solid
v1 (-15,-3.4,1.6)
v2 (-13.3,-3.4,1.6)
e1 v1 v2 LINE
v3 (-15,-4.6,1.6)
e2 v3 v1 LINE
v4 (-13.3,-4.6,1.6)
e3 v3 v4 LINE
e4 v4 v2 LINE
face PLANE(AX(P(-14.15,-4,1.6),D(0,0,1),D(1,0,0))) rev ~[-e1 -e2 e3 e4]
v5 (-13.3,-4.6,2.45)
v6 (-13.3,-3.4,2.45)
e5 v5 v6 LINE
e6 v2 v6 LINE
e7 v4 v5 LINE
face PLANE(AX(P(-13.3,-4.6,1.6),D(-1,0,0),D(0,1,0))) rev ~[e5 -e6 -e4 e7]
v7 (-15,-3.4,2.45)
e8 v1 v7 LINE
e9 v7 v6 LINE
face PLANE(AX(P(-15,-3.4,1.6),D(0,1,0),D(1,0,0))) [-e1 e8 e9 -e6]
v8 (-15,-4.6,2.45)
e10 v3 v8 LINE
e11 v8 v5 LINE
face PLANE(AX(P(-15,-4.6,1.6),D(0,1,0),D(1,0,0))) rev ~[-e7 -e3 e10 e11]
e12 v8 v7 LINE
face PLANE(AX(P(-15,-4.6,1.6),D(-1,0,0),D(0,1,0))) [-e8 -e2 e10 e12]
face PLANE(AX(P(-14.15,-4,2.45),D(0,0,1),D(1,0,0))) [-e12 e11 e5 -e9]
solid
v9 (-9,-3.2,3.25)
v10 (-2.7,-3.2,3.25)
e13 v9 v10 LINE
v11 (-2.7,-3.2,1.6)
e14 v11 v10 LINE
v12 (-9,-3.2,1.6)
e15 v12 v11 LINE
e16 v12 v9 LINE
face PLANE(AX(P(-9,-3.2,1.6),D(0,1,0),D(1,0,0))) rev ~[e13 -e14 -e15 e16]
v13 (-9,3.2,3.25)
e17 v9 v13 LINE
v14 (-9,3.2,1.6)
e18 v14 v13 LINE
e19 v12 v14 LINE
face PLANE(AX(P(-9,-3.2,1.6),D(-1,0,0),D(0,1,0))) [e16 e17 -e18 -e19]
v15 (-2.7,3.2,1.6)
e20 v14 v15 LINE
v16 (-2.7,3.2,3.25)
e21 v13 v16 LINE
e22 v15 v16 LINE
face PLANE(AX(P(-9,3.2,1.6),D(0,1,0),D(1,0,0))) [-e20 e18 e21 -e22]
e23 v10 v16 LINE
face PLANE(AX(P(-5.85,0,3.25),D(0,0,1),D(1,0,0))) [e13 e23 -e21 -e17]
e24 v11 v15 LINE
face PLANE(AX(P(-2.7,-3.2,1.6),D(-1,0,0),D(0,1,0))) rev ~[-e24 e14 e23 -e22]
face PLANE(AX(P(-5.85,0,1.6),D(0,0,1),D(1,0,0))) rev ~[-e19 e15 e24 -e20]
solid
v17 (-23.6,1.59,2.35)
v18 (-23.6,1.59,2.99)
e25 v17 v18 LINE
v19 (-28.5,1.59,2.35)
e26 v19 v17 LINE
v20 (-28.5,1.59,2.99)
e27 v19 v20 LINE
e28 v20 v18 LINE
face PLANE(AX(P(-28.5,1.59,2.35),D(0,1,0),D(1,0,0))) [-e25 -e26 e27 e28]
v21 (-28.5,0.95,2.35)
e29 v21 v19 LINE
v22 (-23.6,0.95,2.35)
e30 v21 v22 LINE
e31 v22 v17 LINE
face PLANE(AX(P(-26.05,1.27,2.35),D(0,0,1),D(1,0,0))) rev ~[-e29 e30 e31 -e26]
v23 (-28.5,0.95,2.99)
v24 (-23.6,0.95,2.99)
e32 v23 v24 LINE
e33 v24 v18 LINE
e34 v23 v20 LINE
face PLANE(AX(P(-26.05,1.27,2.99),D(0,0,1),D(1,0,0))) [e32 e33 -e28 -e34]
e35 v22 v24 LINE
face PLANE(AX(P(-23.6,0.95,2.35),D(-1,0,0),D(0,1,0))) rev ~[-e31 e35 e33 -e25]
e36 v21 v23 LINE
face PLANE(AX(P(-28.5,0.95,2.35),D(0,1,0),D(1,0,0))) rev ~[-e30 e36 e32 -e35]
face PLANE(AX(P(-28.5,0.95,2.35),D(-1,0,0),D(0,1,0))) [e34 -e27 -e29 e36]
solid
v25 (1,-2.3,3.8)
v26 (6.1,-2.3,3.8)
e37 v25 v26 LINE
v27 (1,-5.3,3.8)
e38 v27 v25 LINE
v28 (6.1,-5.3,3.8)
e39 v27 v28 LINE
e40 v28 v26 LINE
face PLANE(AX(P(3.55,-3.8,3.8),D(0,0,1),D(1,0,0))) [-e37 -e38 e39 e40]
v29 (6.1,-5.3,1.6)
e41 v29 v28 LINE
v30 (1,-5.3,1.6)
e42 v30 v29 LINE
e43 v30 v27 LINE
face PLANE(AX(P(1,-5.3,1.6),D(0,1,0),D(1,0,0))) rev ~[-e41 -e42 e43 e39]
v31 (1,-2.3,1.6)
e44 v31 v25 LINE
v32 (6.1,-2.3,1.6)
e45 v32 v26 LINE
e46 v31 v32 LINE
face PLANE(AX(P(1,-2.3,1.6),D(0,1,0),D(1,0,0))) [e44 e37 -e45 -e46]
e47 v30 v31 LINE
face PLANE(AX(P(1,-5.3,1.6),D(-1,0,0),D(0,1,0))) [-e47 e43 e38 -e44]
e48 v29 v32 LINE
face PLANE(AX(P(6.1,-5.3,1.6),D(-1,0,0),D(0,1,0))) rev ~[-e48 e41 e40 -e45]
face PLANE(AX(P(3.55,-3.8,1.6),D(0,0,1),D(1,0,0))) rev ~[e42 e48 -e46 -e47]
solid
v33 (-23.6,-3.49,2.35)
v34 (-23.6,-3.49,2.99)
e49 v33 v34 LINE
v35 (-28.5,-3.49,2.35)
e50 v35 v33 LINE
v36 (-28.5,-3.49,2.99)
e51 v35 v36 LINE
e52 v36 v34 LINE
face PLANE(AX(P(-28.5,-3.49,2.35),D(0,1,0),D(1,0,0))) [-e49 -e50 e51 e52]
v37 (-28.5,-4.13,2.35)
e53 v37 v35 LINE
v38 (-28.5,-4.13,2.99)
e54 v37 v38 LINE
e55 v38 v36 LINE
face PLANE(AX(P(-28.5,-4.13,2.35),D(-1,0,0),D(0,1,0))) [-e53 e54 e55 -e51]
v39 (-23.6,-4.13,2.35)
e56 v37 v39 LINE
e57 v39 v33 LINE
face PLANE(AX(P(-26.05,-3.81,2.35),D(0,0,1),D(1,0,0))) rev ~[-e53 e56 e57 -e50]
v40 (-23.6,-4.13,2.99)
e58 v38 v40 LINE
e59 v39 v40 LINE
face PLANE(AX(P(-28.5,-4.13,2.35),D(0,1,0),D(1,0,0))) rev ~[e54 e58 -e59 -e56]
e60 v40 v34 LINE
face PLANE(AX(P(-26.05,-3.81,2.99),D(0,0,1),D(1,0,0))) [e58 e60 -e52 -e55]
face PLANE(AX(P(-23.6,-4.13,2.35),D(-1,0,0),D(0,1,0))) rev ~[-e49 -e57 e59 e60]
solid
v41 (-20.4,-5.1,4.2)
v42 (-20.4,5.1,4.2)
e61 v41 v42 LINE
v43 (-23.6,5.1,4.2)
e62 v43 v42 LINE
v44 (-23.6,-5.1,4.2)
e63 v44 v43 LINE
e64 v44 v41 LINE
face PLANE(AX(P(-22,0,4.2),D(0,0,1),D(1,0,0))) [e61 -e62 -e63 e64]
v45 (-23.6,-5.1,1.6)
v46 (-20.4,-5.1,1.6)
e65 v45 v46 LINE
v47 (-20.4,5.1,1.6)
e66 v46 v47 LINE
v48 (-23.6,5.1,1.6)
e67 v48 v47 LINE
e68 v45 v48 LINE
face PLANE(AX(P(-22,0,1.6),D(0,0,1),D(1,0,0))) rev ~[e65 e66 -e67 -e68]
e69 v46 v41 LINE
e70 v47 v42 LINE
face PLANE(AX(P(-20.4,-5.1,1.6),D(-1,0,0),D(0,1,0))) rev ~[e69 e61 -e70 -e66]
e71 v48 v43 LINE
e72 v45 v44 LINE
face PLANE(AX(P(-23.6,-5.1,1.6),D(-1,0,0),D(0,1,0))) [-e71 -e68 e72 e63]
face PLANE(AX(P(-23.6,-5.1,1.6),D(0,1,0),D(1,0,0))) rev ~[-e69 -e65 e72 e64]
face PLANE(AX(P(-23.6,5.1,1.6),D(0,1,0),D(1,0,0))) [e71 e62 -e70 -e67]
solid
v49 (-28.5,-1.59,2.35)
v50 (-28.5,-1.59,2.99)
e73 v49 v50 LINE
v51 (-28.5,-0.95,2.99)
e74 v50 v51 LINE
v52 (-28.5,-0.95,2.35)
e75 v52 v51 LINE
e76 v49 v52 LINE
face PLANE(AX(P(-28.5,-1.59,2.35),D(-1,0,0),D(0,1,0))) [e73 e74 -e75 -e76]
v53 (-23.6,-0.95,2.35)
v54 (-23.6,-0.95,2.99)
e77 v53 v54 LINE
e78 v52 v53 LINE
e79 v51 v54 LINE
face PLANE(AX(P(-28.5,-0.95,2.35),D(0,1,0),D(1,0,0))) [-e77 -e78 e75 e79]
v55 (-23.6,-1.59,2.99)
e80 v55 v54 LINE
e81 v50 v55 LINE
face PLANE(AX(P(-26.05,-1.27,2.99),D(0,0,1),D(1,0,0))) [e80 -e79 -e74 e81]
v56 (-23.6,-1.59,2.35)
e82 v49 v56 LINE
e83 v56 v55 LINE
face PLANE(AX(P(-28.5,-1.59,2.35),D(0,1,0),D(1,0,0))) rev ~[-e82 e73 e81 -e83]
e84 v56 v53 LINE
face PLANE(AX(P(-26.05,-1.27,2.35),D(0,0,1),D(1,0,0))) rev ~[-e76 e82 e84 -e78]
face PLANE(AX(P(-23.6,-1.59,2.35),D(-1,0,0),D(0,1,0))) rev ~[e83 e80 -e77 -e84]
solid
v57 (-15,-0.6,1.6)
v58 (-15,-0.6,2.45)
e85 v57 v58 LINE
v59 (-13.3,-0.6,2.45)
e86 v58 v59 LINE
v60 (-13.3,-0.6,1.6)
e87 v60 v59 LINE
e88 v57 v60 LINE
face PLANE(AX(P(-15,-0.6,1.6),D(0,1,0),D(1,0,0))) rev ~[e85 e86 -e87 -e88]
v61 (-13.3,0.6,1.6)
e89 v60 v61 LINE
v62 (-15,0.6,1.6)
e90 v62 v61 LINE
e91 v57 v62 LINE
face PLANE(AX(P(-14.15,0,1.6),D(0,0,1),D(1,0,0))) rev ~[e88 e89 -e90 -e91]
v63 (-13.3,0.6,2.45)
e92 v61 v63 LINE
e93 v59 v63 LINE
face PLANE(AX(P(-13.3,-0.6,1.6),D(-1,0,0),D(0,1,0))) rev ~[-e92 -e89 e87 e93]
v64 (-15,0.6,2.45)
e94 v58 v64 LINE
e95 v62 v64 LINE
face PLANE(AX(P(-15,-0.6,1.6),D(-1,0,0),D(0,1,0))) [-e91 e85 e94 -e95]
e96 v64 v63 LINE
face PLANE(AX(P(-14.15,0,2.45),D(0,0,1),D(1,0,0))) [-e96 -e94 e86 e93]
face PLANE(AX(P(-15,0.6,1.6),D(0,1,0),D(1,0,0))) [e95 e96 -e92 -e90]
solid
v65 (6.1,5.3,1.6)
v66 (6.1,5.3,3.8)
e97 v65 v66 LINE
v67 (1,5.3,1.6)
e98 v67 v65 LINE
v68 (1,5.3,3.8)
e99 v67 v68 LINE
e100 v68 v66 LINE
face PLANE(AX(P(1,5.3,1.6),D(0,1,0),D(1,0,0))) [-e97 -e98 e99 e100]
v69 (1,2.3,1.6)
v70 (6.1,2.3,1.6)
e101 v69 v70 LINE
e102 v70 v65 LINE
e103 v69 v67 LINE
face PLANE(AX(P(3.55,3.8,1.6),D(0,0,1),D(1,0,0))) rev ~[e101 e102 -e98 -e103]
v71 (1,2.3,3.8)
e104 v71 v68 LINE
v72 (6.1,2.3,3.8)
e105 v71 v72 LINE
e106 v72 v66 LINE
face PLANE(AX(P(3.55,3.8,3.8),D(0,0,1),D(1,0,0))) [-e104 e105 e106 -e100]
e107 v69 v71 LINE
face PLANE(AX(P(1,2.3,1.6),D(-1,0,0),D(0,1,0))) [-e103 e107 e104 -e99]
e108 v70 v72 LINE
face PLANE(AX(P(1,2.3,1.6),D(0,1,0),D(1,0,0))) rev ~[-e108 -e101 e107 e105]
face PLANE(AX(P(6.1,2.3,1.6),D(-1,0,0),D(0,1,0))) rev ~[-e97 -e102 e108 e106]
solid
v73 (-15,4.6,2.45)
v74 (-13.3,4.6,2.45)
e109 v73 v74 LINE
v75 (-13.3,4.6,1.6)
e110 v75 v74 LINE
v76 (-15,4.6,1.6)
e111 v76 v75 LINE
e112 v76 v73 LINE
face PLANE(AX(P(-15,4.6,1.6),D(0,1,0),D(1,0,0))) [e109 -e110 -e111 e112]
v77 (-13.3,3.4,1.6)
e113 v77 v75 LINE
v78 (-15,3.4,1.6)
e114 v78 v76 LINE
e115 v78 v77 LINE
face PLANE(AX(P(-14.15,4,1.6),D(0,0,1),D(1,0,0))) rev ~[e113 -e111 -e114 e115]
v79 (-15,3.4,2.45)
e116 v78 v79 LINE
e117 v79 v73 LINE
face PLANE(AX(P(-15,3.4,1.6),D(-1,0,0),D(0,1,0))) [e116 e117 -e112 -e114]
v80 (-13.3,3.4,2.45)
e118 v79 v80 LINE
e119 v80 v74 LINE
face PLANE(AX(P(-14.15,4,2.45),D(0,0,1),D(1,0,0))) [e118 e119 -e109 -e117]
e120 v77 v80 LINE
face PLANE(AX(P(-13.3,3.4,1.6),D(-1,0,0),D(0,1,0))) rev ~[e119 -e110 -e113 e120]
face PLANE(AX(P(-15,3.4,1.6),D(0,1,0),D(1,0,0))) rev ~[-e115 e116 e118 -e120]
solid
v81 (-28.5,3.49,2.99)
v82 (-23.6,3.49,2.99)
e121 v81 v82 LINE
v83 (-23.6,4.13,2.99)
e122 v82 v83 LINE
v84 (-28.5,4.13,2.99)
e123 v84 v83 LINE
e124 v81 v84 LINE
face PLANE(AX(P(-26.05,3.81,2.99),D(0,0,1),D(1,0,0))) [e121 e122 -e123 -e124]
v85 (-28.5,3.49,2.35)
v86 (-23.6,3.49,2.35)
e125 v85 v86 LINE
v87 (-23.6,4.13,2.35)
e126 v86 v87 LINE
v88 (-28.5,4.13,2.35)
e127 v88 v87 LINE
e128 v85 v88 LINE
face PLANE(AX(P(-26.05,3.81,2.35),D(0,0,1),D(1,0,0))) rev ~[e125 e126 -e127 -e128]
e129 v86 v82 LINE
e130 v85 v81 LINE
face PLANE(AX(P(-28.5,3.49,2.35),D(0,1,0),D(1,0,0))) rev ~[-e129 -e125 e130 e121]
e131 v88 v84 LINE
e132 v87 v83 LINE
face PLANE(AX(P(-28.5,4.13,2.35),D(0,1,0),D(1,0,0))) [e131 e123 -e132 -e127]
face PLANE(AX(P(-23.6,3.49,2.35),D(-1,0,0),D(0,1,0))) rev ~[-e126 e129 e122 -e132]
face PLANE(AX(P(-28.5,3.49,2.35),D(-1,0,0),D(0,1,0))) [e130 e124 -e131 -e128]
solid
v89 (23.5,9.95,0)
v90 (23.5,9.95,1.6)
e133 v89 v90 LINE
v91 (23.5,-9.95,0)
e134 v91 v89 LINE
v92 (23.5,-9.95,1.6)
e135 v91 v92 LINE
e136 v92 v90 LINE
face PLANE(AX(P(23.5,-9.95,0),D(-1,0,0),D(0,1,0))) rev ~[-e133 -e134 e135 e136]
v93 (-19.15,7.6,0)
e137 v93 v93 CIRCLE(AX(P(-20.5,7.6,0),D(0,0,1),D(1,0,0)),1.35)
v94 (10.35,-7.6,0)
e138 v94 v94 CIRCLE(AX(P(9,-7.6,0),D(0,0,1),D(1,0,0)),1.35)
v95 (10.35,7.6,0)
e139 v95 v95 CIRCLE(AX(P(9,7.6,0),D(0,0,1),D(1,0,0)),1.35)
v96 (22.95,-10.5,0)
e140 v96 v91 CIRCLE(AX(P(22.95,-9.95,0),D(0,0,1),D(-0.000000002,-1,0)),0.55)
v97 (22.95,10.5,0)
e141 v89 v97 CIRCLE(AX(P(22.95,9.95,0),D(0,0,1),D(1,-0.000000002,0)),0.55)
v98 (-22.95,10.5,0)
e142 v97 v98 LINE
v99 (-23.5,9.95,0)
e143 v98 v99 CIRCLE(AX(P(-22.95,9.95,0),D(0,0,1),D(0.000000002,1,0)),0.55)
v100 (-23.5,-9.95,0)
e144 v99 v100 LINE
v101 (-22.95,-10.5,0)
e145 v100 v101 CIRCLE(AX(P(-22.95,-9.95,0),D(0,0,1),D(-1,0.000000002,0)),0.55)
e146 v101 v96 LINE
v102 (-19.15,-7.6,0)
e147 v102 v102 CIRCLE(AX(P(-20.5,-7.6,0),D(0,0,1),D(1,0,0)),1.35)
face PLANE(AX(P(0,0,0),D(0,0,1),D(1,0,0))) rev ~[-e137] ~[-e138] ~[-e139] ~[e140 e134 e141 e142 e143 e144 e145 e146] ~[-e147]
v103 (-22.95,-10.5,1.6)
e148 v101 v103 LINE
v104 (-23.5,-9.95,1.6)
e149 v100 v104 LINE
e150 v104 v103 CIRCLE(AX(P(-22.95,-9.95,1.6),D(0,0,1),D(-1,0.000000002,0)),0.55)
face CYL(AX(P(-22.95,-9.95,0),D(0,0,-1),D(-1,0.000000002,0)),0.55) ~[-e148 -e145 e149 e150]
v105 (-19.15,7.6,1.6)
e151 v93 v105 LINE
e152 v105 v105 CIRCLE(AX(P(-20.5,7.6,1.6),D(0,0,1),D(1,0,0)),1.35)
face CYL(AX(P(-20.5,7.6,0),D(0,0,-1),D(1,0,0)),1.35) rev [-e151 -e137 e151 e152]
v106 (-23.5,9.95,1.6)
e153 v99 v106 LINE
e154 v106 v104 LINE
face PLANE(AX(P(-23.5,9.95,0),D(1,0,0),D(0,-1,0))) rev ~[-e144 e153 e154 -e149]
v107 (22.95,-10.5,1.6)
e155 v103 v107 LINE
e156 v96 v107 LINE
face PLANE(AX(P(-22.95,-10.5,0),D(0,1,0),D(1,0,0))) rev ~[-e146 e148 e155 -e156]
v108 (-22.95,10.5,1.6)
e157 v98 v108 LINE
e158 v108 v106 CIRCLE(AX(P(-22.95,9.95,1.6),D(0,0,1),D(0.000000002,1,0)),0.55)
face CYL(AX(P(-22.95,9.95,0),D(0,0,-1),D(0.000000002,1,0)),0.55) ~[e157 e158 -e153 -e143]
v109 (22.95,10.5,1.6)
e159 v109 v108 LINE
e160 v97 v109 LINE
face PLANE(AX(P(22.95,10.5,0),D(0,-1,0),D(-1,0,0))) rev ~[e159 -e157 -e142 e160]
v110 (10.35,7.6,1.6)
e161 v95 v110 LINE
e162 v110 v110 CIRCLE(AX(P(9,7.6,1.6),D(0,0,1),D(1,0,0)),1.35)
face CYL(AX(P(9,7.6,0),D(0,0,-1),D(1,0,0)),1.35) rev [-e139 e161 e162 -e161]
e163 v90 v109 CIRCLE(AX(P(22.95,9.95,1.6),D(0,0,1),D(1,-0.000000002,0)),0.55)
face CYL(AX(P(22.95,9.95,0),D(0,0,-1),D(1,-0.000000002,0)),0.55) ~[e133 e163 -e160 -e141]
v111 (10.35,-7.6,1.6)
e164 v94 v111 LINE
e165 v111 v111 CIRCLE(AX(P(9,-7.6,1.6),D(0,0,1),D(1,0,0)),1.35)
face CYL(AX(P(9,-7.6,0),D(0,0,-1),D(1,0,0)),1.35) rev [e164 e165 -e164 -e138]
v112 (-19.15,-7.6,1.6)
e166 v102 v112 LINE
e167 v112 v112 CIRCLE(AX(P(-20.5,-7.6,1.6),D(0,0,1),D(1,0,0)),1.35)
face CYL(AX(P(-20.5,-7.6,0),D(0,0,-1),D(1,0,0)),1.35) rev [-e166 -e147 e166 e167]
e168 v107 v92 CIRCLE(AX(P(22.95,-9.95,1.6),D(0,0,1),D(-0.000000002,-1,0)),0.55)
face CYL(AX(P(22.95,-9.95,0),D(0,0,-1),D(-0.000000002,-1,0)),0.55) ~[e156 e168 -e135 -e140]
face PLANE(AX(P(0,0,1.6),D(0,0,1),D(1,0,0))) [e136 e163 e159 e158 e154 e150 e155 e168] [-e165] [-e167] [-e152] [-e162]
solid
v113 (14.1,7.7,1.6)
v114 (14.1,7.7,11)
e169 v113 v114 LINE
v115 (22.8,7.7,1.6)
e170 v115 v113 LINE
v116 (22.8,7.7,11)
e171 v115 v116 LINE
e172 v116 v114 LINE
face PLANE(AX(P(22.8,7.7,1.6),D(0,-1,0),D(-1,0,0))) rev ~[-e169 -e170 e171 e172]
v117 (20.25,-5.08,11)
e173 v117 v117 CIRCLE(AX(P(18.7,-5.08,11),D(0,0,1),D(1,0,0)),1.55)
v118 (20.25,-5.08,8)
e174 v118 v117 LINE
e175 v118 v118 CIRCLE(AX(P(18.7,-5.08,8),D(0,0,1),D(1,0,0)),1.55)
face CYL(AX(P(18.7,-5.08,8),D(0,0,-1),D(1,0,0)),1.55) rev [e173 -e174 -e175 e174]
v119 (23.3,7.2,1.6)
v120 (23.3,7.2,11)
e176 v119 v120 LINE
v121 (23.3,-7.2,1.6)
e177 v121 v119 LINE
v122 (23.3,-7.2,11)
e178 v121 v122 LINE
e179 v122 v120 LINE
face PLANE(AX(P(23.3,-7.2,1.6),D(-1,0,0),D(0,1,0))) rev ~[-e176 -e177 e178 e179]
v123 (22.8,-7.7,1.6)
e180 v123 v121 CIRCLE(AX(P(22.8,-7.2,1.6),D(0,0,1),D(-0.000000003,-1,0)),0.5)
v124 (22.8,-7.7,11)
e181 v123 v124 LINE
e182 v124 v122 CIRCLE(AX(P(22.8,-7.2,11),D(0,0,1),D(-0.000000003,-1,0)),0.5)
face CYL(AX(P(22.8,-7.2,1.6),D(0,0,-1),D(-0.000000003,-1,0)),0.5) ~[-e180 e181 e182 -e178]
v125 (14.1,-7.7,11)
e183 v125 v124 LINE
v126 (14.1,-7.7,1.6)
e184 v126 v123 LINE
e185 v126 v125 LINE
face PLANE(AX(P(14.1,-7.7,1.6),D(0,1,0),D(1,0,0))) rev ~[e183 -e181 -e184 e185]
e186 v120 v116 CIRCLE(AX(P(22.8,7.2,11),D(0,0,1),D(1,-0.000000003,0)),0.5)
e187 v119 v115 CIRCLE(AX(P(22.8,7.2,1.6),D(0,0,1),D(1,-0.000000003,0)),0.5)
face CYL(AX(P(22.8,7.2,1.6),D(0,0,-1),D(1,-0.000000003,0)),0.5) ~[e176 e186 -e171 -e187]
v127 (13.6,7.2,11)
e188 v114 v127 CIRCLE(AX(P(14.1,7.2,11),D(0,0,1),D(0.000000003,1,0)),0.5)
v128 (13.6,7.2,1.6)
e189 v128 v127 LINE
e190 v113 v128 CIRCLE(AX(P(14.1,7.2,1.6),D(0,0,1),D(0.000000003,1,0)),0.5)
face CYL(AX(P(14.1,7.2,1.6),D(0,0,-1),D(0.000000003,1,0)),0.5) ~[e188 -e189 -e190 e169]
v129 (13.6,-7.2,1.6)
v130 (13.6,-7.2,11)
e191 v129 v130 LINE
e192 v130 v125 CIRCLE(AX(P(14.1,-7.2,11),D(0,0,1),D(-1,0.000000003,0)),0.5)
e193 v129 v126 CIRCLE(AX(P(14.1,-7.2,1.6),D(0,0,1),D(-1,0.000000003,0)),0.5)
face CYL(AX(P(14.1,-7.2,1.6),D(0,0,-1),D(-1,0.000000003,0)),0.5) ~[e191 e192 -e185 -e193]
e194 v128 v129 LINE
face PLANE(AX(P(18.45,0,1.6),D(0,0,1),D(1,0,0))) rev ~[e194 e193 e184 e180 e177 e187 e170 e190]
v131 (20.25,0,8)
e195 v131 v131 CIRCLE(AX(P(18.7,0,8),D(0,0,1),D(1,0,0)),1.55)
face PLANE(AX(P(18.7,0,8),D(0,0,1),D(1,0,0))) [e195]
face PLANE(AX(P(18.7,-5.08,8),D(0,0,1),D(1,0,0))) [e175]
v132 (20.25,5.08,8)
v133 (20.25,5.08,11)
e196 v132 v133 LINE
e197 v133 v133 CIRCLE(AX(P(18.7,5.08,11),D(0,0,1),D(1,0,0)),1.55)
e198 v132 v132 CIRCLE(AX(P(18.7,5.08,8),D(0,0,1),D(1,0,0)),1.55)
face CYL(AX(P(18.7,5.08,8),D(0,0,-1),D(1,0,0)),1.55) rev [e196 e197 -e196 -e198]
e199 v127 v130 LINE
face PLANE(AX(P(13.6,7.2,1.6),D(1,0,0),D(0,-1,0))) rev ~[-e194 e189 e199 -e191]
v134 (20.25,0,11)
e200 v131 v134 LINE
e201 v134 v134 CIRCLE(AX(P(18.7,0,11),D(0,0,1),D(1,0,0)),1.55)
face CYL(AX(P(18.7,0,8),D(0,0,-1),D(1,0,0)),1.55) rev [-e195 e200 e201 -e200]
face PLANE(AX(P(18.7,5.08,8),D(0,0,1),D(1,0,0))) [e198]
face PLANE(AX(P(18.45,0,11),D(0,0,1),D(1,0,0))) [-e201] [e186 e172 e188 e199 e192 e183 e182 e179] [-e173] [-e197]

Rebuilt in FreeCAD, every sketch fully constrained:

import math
import FreeCAD as App
import Part
import Sketcher

doc = App.newDocument("Part")
body = doc.addObject("PartDesign::Body", "Body")

# Sketch on XY plane
sketch1 = doc.addObject("Sketcher::SketchObject", "Sketch")
body.addObject(sketch1)
sketch1.AttachmentSupport = (doc.XY_Plane, [""])
sketch1.MapMode = "FlatFace"
sketch1.addGeometry([
    Part.LineSegment(App.Vector(-22.9, -10.5, 0), App.Vector(22.9, -10.5, 0)),  # 0
    Part.ArcOfCircle(Part.Circle(App.Vector(23, -10, 0), App.Vector(0, 0, 1), 0.5), math.radians(-90), math.radians(0)),  # 1
    Part.LineSegment(App.Vector(23.5, -9.9, 0), App.Vector(23.5, 9.9, 0)),  # 2
    Part.ArcOfCircle(Part.Circle(App.Vector(23, 10, 0), App.Vector(0, 0, 1), 0.5), math.radians(0), math.radians(90)),  # 3
    Part.LineSegment(App.Vector(22.9, 10.5, 0), App.Vector(-22.9, 10.5, 0)),  # 4
    Part.ArcOfCircle(Part.Circle(App.Vector(-23, 10, 0), App.Vector(0, 0, 1), 0.5), math.radians(90), math.radians(180)),  # 5
    Part.LineSegment(App.Vector(-23.5, 9.9, 0), App.Vector(-23.5, -9.9, 0)),  # 6
    Part.ArcOfCircle(Part.Circle(App.Vector(-23, -10, 0), App.Vector(0, 0, 1), 0.5), math.radians(180), math.radians(270)),  # 7
    Part.Circle(App.Vector(-20.5, -7.6, 0), App.Vector(0, 0, 1), 1.4),  # 8
    Part.Circle(App.Vector(9, -7.6, 0), App.Vector(0, 0, 1), 1.4),  # 9
    Part.Circle(App.Vector(-20.5, 7.6, 0), App.Vector(0, 0, 1), 1.4),  # 10
    Part.Circle(App.Vector(9, 7.6, 0), App.Vector(0, 0, 1), 1.4),  # 11
], False)
sketch1.addConstraint([
    Sketcher.Constraint("Tangent", 0, 2, 1, 1),
    Sketcher.Constraint("Tangent", 1, 2, 2, 1),
    Sketcher.Constraint("Tangent", 2, 2, 3, 1),
    Sketcher.Constraint("Tangent", 3, 2, 4, 1),
    Sketcher.Constraint("Tangent", 4, 2, 5, 1),
    Sketcher.Constraint("Tangent", 5, 2, 6, 1),
    Sketcher.Constraint("Tangent", 6, 2, 7, 1),
    Sketcher.Constraint("Tangent", 7, 2, 0, 1),
    Sketcher.Constraint("Horizontal", 0),
    Sketcher.Constraint("Vertical", 2),
    Sketcher.Constraint("Horizontal", 4),
    Sketcher.Constraint("Vertical", 6),
    Sketcher.Constraint("Equal", 1, 3),
    Sketcher.Constraint("Equal", 3, 5),
    Sketcher.Constraint("Equal", 5, 7),
    Sketcher.Constraint("Equal", 8, 9),
    Sketcher.Constraint("Equal", 9, 10),
    Sketcher.Constraint("Equal", 10, 11),
    Sketcher.Constraint("Symmetric", 1, 3, 5, 3, -1, 1),
    Sketcher.Constraint("Symmetric", 8, 3, 10, 3, -1),
    Sketcher.Constraint("Symmetric", 9, 3, 11, 3, -1),
    Sketcher.Constraint("Horizontal", 8, 3, 9, 3),
    Sketcher.Constraint("Diameter", 8, 2.7),
    Sketcher.Constraint("Radius", 1, 0.55),
    Sketcher.Constraint("DistanceX", 0, 1, 0, 2, 45.9),
    Sketcher.Constraint("DistanceY", 2, 1, 2, 2, 19.9),
    Sketcher.Constraint("DistanceX", -1, 1, 9, 3, 9.0),
    Sketcher.Constraint("DistanceX", 5, 2, 10, 3, 3.0),
    Sketcher.Constraint("DistanceY", 8, 3, -1, 1, 7.6),
])
pad1 = doc.addObject("PartDesign::Pad", "Pad")
body.addObject(pad1)
pad1.Profile = sketch1
pad1.Length = 1.6
body2 = doc.addObject("PartDesign::Body", "Body001")

# Sketch on XY plane
sketch2 = doc.addObject("Sketcher::SketchObject", "Sketch001")
body2.addObject(sketch2)
sketch2.AttachmentSupport = (doc.getObject("XY_Plane001"), [""])
sketch2.MapMode = "FlatFace"
sketch2.AttachmentOffset = App.Placement(App.Vector(0, 0, 1.6), App.Rotation())
sketch2.addGeometry([
    Part.LineSegment(App.Vector(-23.6, 5.1, 0), App.Vector(-23.6, -5.1, 0)),
    Part.LineSegment(App.Vector(-23.6, -5.1, 0), App.Vector(-20.4, -5.1, 0)),
    Part.LineSegment(App.Vector(-20.4, -5.1, 0), App.Vector(-20.4, 5.1, 0)),
    Part.LineSegment(App.Vector(-20.4, 5.1, 0), App.Vector(-23.6, 5.1, 0)),
], False)
sketch2.addConstraint([
    Sketcher.Constraint("Coincident", 0, 2, 1, 1),
    Sketcher.Constraint("Coincident", 1, 2, 2, 1),
    Sketcher.Constraint("Coincident", 2, 2, 3, 1),
    Sketcher.Constraint("Coincident", 3, 2, 0, 1),
    Sketcher.Constraint("Vertical", 0),
    Sketcher.Constraint("Horizontal", 1),
    Sketcher.Constraint("Vertical", 2),
    Sketcher.Constraint("Horizontal", 3),
    Sketcher.Constraint("DistanceX", 1, 1, 1, 2, 3.2),
    Sketcher.Constraint("DistanceY", 0, 2, 0, 1, 10.2),
    Sketcher.Constraint("DistanceX", 0, 2, -1, 1, 23.6),
    Sketcher.Constraint("DistanceY", 0, 2, -1, 1, 5.1),
])
pad2 = doc.addObject("PartDesign::Pad", "Pad001")
body2.addObject(pad2)
pad2.Profile = sketch2
pad2.Length = 2.6
body3 = doc.addObject("PartDesign::Body", "Body002")

# Sketch on XY plane
sketch3 = doc.addObject("Sketcher::SketchObject", "Sketch002")
body3.addObject(sketch3)
sketch3.AttachmentSupport = (doc.getObject("XY_Plane002"), [""])
sketch3.MapMode = "FlatFace"
sketch3.AttachmentOffset = App.Placement(App.Vector(0, 0, 2.35), App.Rotation())
sketch3.addGeometry([
    Part.LineSegment(App.Vector(-28.5, -3.5, 0), App.Vector(-28.5, -4.1, 0)),
    Part.LineSegment(App.Vector(-28.5, -4.1, 0), App.Vector(-23.6, -4.1, 0)),
    Part.LineSegment(App.Vector(-23.6, -4.1, 0), App.Vector(-23.6, -3.5, 0)),
    Part.LineSegment(App.Vector(-23.6, -3.5, 0), App.Vector(-28.5, -3.5, 0)),
], False)
sketch3.addConstraint([
    Sketcher.Constraint("Coincident", 0, 2, 1, 1),
    Sketcher.Constraint("Coincident", 1, 2, 2, 1),
    Sketcher.Constraint("Coincident", 2, 2, 3, 1),
    Sketcher.Constraint("Coincident", 3, 2, 0, 1),
    Sketcher.Constraint("Vertical", 0),
    Sketcher.Constraint("Horizontal", 1),
    Sketcher.Constraint("Vertical", 2),
    Sketcher.Constraint("Horizontal", 3),
    Sketcher.Constraint("DistanceX", 1, 1, 1, 2, 4.9),
    Sketcher.Constraint("DistanceY", 0, 2, 0, 1, 0.64),
    Sketcher.Constraint("DistanceX", 0, 2, -1, 1, 28.5),
    Sketcher.Constraint("DistanceY", 0, 2, -1, 1, 4.13),
])
pad3 = doc.addObject("PartDesign::Pad", "Pad002")
body3.addObject(pad3)
pad3.Profile = sketch3
pad3.Length = 0.64
body4 = doc.addObject("PartDesign::Body", "Body003")

# Sketch on XY plane
sketch4 = doc.addObject("Sketcher::SketchObject", "Sketch003")
body4.addObject(sketch4)
sketch4.AttachmentSupport = (doc.getObject("XY_Plane003"), [""])
sketch4.MapMode = "FlatFace"
sketch4.AttachmentOffset = App.Placement(App.Vector(0, 0, 2.35), App.Rotation())
sketch4.addGeometry([
    Part.LineSegment(App.Vector(-28.5, -0.9, 0), App.Vector(-28.5, -1.6, 0)),
    Part.LineSegment(App.Vector(-28.5, -1.6, 0), App.Vector(-23.6, -1.6, 0)),
    Part.LineSegment(App.Vector(-23.6, -1.6, 0), App.Vector(-23.6, -0.9, 0)),
    Part.LineSegment(App.Vector(-23.6, -0.9, 0), App.Vector(-28.5, -0.9, 0)),
], False)
sketch4.addConstraint([
    Sketcher.Constraint("Coincident", 0, 2, 1, 1),
    Sketcher.Constraint("Coincident", 1, 2, 2, 1),
    Sketcher.Constraint("Coincident", 2, 2, 3, 1),
    Sketcher.Constraint("Coincident", 3, 2, 0, 1),
    Sketcher.Constraint("Vertical", 0),
    Sketcher.Constraint("Horizontal", 1),
    Sketcher.Constraint("Vertical", 2),
    Sketcher.Constraint("Horizontal", 3),
    Sketcher.Constraint("DistanceX", 1, 1, 1, 2, 4.9),
    Sketcher.Constraint("DistanceY", 0, 2, 0, 1, 0.64),
    Sketcher.Constraint("DistanceX", 0, 2, -1, 1, 28.5),
    Sketcher.Constraint("DistanceY", 0, 2, -1, 1, 1.59),
])
pad4 = doc.addObject("PartDesign::Pad", "Pad003")
body4.addObject(pad4)
pad4.Profile = sketch4
pad4.Length = 0.64
body5 = doc.addObject("PartDesign::Body", "Body004")

# Sketch on XY plane
sketch5 = doc.addObject("Sketcher::SketchObject", "Sketch004")
body5.addObject(sketch5)
sketch5.AttachmentSupport = (doc.getObject("XY_Plane004"), [""])
sketch5.MapMode = "FlatFace"
sketch5.AttachmentOffset = App.Placement(App.Vector(0, 0, 2.35), App.Rotation())
sketch5.addGeometry([
    Part.LineSegment(App.Vector(-28.5, 1.6, 0), App.Vector(-28.5, 0.9, 0)),
    Part.LineSegment(App.Vector(-28.5, 0.9, 0), App.Vector(-23.6, 0.9, 0)),
    Part.LineSegment(App.Vector(-23.6, 0.9, 0), App.Vector(-23.6, 1.6, 0)),
    Part.LineSegment(App.Vector(-23.6, 1.6, 0), App.Vector(-28.5, 1.6, 0)),
], False)
sketch5.addConstraint([
    Sketcher.Constraint("Coincident", 0, 2, 1, 1),
    Sketcher.Constraint("Coincident", 1, 2, 2, 1),
    Sketcher.Constraint("Coincident", 2, 2, 3, 1),
    Sketcher.Constraint("Coincident", 3, 2, 0, 1),
    Sketcher.Constraint("Vertical", 0),
    Sketcher.Constraint("Horizontal", 1),
    Sketcher.Constraint("Vertical", 2),
    Sketcher.Constraint("Horizontal", 3),
    Sketcher.Constraint("DistanceX", 1, 1, 1, 2, 4.9),
    Sketcher.Constraint("DistanceY", 0, 2, 0, 1, 0.64),
    Sketcher.Constraint("DistanceX", 0, 2, -1, 1, 28.5),
    Sketcher.Constraint("DistanceY", -1, 1, 0, 2, 0.95),
])
pad5 = doc.addObject("PartDesign::Pad", "Pad004")
body5.addObject(pad5)
pad5.Profile = sketch5
pad5.Length = 0.64
body6 = doc.addObject("PartDesign::Body", "Body005")

# Sketch on XY plane
sketch6 = doc.addObject("Sketcher::SketchObject", "Sketch005")
body6.addObject(sketch6)
sketch6.AttachmentSupport = (doc.getObject("XY_Plane005"), [""])
sketch6.MapMode = "FlatFace"
sketch6.AttachmentOffset = App.Placement(App.Vector(0, 0, 2.35), App.Rotation())
sketch6.addGeometry([
    Part.LineSegment(App.Vector(-28.5, 4.1, 0), App.Vector(-28.5, 3.5, 0)),
    Part.LineSegment(App.Vector(-28.5, 3.5, 0), App.Vector(-23.6, 3.5, 0)),
    Part.LineSegment(App.Vector(-23.6, 3.5, 0), App.Vector(-23.6, 4.1, 0)),
    Part.LineSegment(App.Vector(-23.6, 4.1, 0), App.Vector(-28.5, 4.1, 0)),
], False)
sketch6.addConstraint([
    Sketcher.Constraint("Coincident", 0, 2, 1, 1),
    Sketcher.Constraint("Coincident", 1, 2, 2, 1),
    Sketcher.Constraint("Coincident", 2, 2, 3, 1),
    Sketcher.Constraint("Coincident", 3, 2, 0, 1),
    Sketcher.Constraint("Vertical", 0),
    Sketcher.Constraint("Horizontal", 1),
    Sketcher.Constraint("Vertical", 2),
    Sketcher.Constraint("Horizontal", 3),
    Sketcher.Constraint("DistanceX", 1, 1, 1, 2, 4.9),
    Sketcher.Constraint("DistanceY", 0, 2, 0, 1, 0.64),
    Sketcher.Constraint("DistanceX", 0, 2, -1, 1, 28.5),
    Sketcher.Constraint("DistanceY", -1, 1, 0, 2, 3.49),
])
pad6 = doc.addObject("PartDesign::Pad", "Pad005")
body6.addObject(pad6)
pad6.Profile = sketch6
pad6.Length = 0.64
body7 = doc.addObject("PartDesign::Body", "Body006")

# Sketch on XY plane
sketch7 = doc.addObject("Sketcher::SketchObject", "Sketch006")
body7.addObject(sketch7)
sketch7.AttachmentSupport = (doc.getObject("XY_Plane006"), [""])
sketch7.MapMode = "FlatFace"
sketch7.AttachmentOffset = App.Placement(App.Vector(0, 0, 1.6), App.Rotation())
sketch7.addGeometry([
    Part.LineSegment(App.Vector(14.1, -7.7, 0), App.Vector(22.8, -7.7, 0)),  # 0
    Part.ArcOfCircle(Part.Circle(App.Vector(22.8, -7.2, 0), App.Vector(0, 0, 1), 0.5), math.radians(-90), math.radians(0)),  # 1
    Part.LineSegment(App.Vector(23.3, -7.2, 0), App.Vector(23.3, 7.2, 0)),  # 2
    Part.ArcOfCircle(Part.Circle(App.Vector(22.8, 7.2, 0), App.Vector(0, 0, 1), 0.5), math.radians(0), math.radians(90)),  # 3
    Part.LineSegment(App.Vector(22.8, 7.7, 0), App.Vector(14.1, 7.7, 0)),  # 4
    Part.ArcOfCircle(Part.Circle(App.Vector(14.1, 7.2, 0), App.Vector(0, 0, 1), 0.5), math.radians(90), math.radians(180)),  # 5
    Part.LineSegment(App.Vector(13.6, 7.2, 0), App.Vector(13.6, -7.2, 0)),  # 6
    Part.ArcOfCircle(Part.Circle(App.Vector(14.1, -7.2, 0), App.Vector(0, 0, 1), 0.5), math.radians(180), math.radians(270)),  # 7
], False)
sketch7.addConstraint([
    Sketcher.Constraint("Tangent", 0, 2, 1, 1),
    Sketcher.Constraint("Tangent", 1, 2, 2, 1),
    Sketcher.Constraint("Tangent", 2, 2, 3, 1),
    Sketcher.Constraint("Tangent", 3, 2, 4, 1),
    Sketcher.Constraint("Tangent", 4, 2, 5, 1),
    Sketcher.Constraint("Tangent", 5, 2, 6, 1),
    Sketcher.Constraint("Tangent", 6, 2, 7, 1),
    Sketcher.Constraint("Tangent", 7, 2, 0, 1),
    Sketcher.Constraint("Horizontal", 0),
    Sketcher.Constraint("Vertical", 2),
    Sketcher.Constraint("Horizontal", 4),
    Sketcher.Constraint("Vertical", 6),
    Sketcher.Constraint("Equal", 1, 3),
    Sketcher.Constraint("Equal", 3, 5),
    Sketcher.Constraint("Equal", 5, 7),
    Sketcher.Constraint("Radius", 1, 0.5),
    Sketcher.Constraint("DistanceX", 0, 1, 0, 2, 8.7),
    Sketcher.Constraint("DistanceY", 2, 1, 2, 2, 14.4),
    Sketcher.Constraint("DistanceX", -1, 1, 1, 3, 22.8),
    Sketcher.Constraint("DistanceY", 1, 3, -1, 1, 7.2),
])
pad7 = doc.addObject("PartDesign::Pad", "Pad006")
body7.addObject(pad7)
pad7.Profile = sketch7
pad7.Length = 9.4

# Sketch on XY plane
sketch8 = doc.addObject("Sketcher::SketchObject", "Sketch007")
body7.addObject(sketch8)
sketch8.AttachmentSupport = (doc.getObject("XY_Plane006"), [""])
sketch8.MapMode = "FlatFace"
sketch8.AttachmentOffset = App.Placement(App.Vector(0, 0, 8), App.Rotation())
sketch8.addGeometry([
    Part.Circle(App.Vector(18.7, -5.1, 0), App.Vector(0, 0, 1), 1.6),
    Part.Circle(App.Vector(18.7, 0, 0), App.Vector(0, 0, 1), 1.6),
    Part.Circle(App.Vector(18.7, 5.1, 0), App.Vector(0, 0, 1), 1.6),
], False)
sketch8.addConstraint([
    Sketcher.Constraint("Equal", 0, 1),
    Sketcher.Constraint("Equal", 1, 2),
    Sketcher.Constraint("Symmetric", 0, 3, 2, 3, -1),
    Sketcher.Constraint("PointOnObject", 1, 3, -1),
    Sketcher.Constraint("Vertical", 0, 3, 1, 3),
    Sketcher.Constraint("Diameter", 0, 3.1),
    Sketcher.Constraint("DistanceX", -1, 1, 0, 3, 18.7),
    Sketcher.Constraint("DistanceY", 0, 3, -1, 1, 5.08),
])
pocket1 = doc.addObject("PartDesign::Pocket", "Pocket")
body7.addObject(pocket1)
pocket1.Profile = sketch8
pocket1.Length = 3
pocket1.Reversed = True
body8 = doc.addObject("PartDesign::Body", "Body007")

# Sketch on XY plane
sketch9 = doc.addObject("Sketcher::SketchObject", "Sketch008")
body8.addObject(sketch9)
sketch9.AttachmentSupport = (doc.getObject("XY_Plane007"), [""])
sketch9.MapMode = "FlatFace"
sketch9.AttachmentOffset = App.Placement(App.Vector(0, 0, 1.6), App.Rotation())
sketch9.addGeometry([
    Part.LineSegment(App.Vector(-9, 3, 0), App.Vector(-9, -3, 0)),
    Part.LineSegment(App.Vector(-9, -3, 0), App.Vector(-3, -3, 0)),
    Part.LineSegment(App.Vector(-3, -3, 0), App.Vector(-3, 3, 0)),
    Part.LineSegment(App.Vector(-3, 3, 0), App.Vector(-9, 3, 0)),
], False)
sketch9.addConstraint([
    Sketcher.Constraint("Coincident", 0, 2, 1, 1),
    Sketcher.Constraint("Coincident", 1, 2, 2, 1),
    Sketcher.Constraint("Coincident", 2, 2, 3, 1),
    Sketcher.Constraint("Coincident", 3, 2, 0, 1),
    Sketcher.Constraint("Vertical", 0),
    Sketcher.Constraint("Horizontal", 1),
    Sketcher.Constraint("Vertical", 2),
    Sketcher.Constraint("Horizontal", 3),
    Sketcher.Constraint("DistanceX", 1, 1, 1, 2, 6.3),
    Sketcher.Constraint("DistanceY", 0, 2, 0, 1, 6.4),
    Sketcher.Constraint("DistanceX", 0, 2, -1, 1, 9.0),
    Sketcher.Constraint("DistanceY", 0, 2, -1, 1, 3.2),
])
pad8 = doc.addObject("PartDesign::Pad", "Pad007")
body8.addObject(pad8)
pad8.Profile = sketch9
pad8.Length = 1.65
body9 = doc.addObject("PartDesign::Body", "Body008")

# Sketch on XY plane
sketch10 = doc.addObject("Sketcher::SketchObject", "Sketch009")
body9.addObject(sketch10)
sketch10.AttachmentSupport = (doc.getObject("XY_Plane008"), [""])
sketch10.MapMode = "FlatFace"
sketch10.AttachmentOffset = App.Placement(App.Vector(0, 0, 1.6), App.Rotation())
sketch10.addGeometry([
    Part.LineSegment(App.Vector(1, -2.3, 0), App.Vector(1, -5.3, 0)),
    Part.LineSegment(App.Vector(1, -5.3, 0), App.Vector(6.1, -5.3, 0)),
    Part.LineSegment(App.Vector(6.1, -5.3, 0), App.Vector(6.1, -2.3, 0)),
    Part.LineSegment(App.Vector(6.1, -2.3, 0), App.Vector(1, -2.3, 0)),
], False)
sketch10.addConstraint([
    Sketcher.Constraint("Coincident", 0, 2, 1, 1),
    Sketcher.Constraint("Coincident", 1, 2, 2, 1),
    Sketcher.Constraint("Coincident", 2, 2, 3, 1),
    Sketcher.Constraint("Coincident", 3, 2, 0, 1),
    Sketcher.Constraint("Vertical", 0),
    Sketcher.Constraint("Horizontal", 1),
    Sketcher.Constraint("Vertical", 2),
    Sketcher.Constraint("Horizontal", 3),
    Sketcher.Constraint("DistanceY", 0, 2, 0, 1, 3.0),
    Sketcher.Constraint("DistanceX", 1, 1, 1, 2, 5.1),
    Sketcher.Constraint("DistanceX", -1, 1, 0, 2, 1.0),
    Sketcher.Constraint("DistanceY", 0, 2, -1, 1, 5.3),
])
pad9 = doc.addObject("PartDesign::Pad", "Pad008")
body9.addObject(pad9)
pad9.Profile = sketch10
pad9.Length = 2.2
body10 = doc.addObject("PartDesign::Body", "Body009")

# Sketch on XY plane
sketch11 = doc.addObject("Sketcher::SketchObject", "Sketch010")
body10.addObject(sketch11)
sketch11.AttachmentSupport = (doc.getObject("XY_Plane009"), [""])
sketch11.MapMode = "FlatFace"
sketch11.AttachmentOffset = App.Placement(App.Vector(0, 0, 1.6), App.Rotation())
sketch11.addGeometry([
    Part.LineSegment(App.Vector(1, 5.3, 0), App.Vector(1, 2.3, 0)),
    Part.LineSegment(App.Vector(1, 2.3, 0), App.Vector(6.1, 2.3, 0)),
    Part.LineSegment(App.Vector(6.1, 2.3, 0), App.Vector(6.1, 5.3, 0)),
    Part.LineSegment(App.Vector(6.1, 5.3, 0), App.Vector(1, 5.3, 0)),
], False)
sketch11.addConstraint([
    Sketcher.Constraint("Coincident", 0, 2, 1, 1),
    Sketcher.Constraint("Coincident", 1, 2, 2, 1),
    Sketcher.Constraint("Coincident", 2, 2, 3, 1),
    Sketcher.Constraint("Coincident", 3, 2, 0, 1),
    Sketcher.Constraint("Vertical", 0),
    Sketcher.Constraint("Horizontal", 1),
    Sketcher.Constraint("Vertical", 2),
    Sketcher.Constraint("Horizontal", 3),
    Sketcher.Constraint("DistanceY", 0, 2, 0, 1, 3.0),
    Sketcher.Constraint("DistanceX", 1, 1, 1, 2, 5.1),
    Sketcher.Constraint("DistanceX", -1, 1, 0, 2, 1.0),
    Sketcher.Constraint("DistanceY", -1, 1, 0, 2, 2.3),
])
pad10 = doc.addObject("PartDesign::Pad", "Pad009")
body10.addObject(pad10)
pad10.Profile = sketch11
pad10.Length = 2.2
body11 = doc.addObject("PartDesign::Body", "Body010")

# Sketch on XY plane
sketch12 = doc.addObject("Sketcher::SketchObject", "Sketch011")
body11.addObject(sketch12)
sketch12.AttachmentSupport = (doc.getObject("XY_Plane010"), [""])
sketch12.MapMode = "FlatFace"
sketch12.AttachmentOffset = App.Placement(App.Vector(0, 0, 1.6), App.Rotation())
sketch12.addGeometry([
    Part.LineSegment(App.Vector(-15, -3.4, 0), App.Vector(-15, -4.6, 0)),
    Part.LineSegment(App.Vector(-15, -4.6, 0), App.Vector(-13.3, -4.6, 0)),
    Part.LineSegment(App.Vector(-13.3, -4.6, 0), App.Vector(-13.3, -3.4, 0)),
    Part.LineSegment(App.Vector(-13.3, -3.4, 0), App.Vector(-15, -3.4, 0)),
], False)
sketch12.addConstraint([
    Sketcher.Constraint("Coincident", 0, 2, 1, 1),
    Sketcher.Constraint("Coincident", 1, 2, 2, 1),
    Sketcher.Constraint("Coincident", 2, 2, 3, 1),
    Sketcher.Constraint("Coincident", 3, 2, 0, 1),
    Sketcher.Constraint("Vertical", 0),
    Sketcher.Constraint("Horizontal", 1),
    Sketcher.Constraint("Vertical", 2),
    Sketcher.Constraint("Horizontal", 3),
    Sketcher.Constraint("DistanceX", 1, 1, 1, 2, 1.7),
    Sketcher.Constraint("DistanceY", 0, 2, 0, 1, 1.2),
    Sketcher.Constraint("DistanceX", 0, 2, -1, 1, 15.0),
    Sketcher.Constraint("DistanceY", 0, 2, -1, 1, 4.6),
])
pad11 = doc.addObject("PartDesign::Pad", "Pad010")
body11.addObject(pad11)
pad11.Profile = sketch12
pad11.Length = 0.85
body12 = doc.addObject("PartDesign::Body", "Body011")

# Sketch on XY plane
sketch13 = doc.addObject("Sketcher::SketchObject", "Sketch012")
body12.addObject(sketch13)
sketch13.AttachmentSupport = (doc.getObject("XY_Plane011"), [""])
sketch13.MapMode = "FlatFace"
sketch13.AttachmentOffset = App.Placement(App.Vector(0, 0, 1.6), App.Rotation())
sketch13.addGeometry([
    Part.LineSegment(App.Vector(-15, 0.6, 0), App.Vector(-15, -0.6, 0)),
    Part.LineSegment(App.Vector(-15, -0.6, 0), App.Vector(-13.3, -0.6, 0)),
    Part.LineSegment(App.Vector(-13.3, -0.6, 0), App.Vector(-13.3, 0.6, 0)),
    Part.LineSegment(App.Vector(-13.3, 0.6, 0), App.Vector(-15, 0.6, 0)),
], False)
sketch13.addConstraint([
    Sketcher.Constraint("Coincident", 0, 2, 1, 1),
    Sketcher.Constraint("Coincident", 1, 2, 2, 1),
    Sketcher.Constraint("Coincident", 2, 2, 3, 1),
    Sketcher.Constraint("Coincident", 3, 2, 0, 1),
    Sketcher.Constraint("Vertical", 0),
    Sketcher.Constraint("Horizontal", 1),
    Sketcher.Constraint("Vertical", 2),
    Sketcher.Constraint("Horizontal", 3),
    Sketcher.Constraint("DistanceX", 1, 1, 1, 2, 1.7),
    Sketcher.Constraint("DistanceY", 0, 2, 0, 1, 1.2),
    Sketcher.Constraint("DistanceX", 0, 2, -1, 1, 15.0),
    Sketcher.Constraint("DistanceY", 0, 2, -1, 1, 0.6),
])
pad12 = doc.addObject("PartDesign::Pad", "Pad011")
body12.addObject(pad12)
pad12.Profile = sketch13
pad12.Length = 0.85
body13 = doc.addObject("PartDesign::Body", "Body012")

# Sketch on XY plane
sketch14 = doc.addObject("Sketcher::SketchObject", "Sketch013")
body13.addObject(sketch14)
sketch14.AttachmentSupport = (doc.getObject("XY_Plane012"), [""])
sketch14.MapMode = "FlatFace"
sketch14.AttachmentOffset = App.Placement(App.Vector(0, 0, 1.6), App.Rotation())
sketch14.addGeometry([
    Part.LineSegment(App.Vector(-15, 4.6, 0), App.Vector(-15, 3.4, 0)),
    Part.LineSegment(App.Vector(-15, 3.4, 0), App.Vector(-13.3, 3.4, 0)),
    Part.LineSegment(App.Vector(-13.3, 3.4, 0), App.Vector(-13.3, 4.6, 0)),
    Part.LineSegment(App.Vector(-13.3, 4.6, 0), App.Vector(-15, 4.6, 0)),
], False)
sketch14.addConstraint([
    Sketcher.Constraint("Coincident", 0, 2, 1, 1),
    Sketcher.Constraint("Coincident", 1, 2, 2, 1),
    Sketcher.Constraint("Coincident", 2, 2, 3, 1),
    Sketcher.Constraint("Coincident", 3, 2, 0, 1),
    Sketcher.Constraint("Vertical", 0),
    Sketcher.Constraint("Horizontal", 1),
    Sketcher.Constraint("Vertical", 2),
    Sketcher.Constraint("Horizontal", 3),
    Sketcher.Constraint("DistanceX", 1, 1, 1, 2, 1.7),
    Sketcher.Constraint("DistanceY", 0, 2, 0, 1, 1.2),
    Sketcher.Constraint("DistanceX", 0, 2, -1, 1, 15.0),
    Sketcher.Constraint("DistanceY", -1, 1, 0, 2, 3.4),
])
pad13 = doc.addObject("PartDesign::Pad", "Pad012")
body13.addObject(pad13)
pad13.Profile = sketch14
pad13.Length = 0.85

doc.recompute()
